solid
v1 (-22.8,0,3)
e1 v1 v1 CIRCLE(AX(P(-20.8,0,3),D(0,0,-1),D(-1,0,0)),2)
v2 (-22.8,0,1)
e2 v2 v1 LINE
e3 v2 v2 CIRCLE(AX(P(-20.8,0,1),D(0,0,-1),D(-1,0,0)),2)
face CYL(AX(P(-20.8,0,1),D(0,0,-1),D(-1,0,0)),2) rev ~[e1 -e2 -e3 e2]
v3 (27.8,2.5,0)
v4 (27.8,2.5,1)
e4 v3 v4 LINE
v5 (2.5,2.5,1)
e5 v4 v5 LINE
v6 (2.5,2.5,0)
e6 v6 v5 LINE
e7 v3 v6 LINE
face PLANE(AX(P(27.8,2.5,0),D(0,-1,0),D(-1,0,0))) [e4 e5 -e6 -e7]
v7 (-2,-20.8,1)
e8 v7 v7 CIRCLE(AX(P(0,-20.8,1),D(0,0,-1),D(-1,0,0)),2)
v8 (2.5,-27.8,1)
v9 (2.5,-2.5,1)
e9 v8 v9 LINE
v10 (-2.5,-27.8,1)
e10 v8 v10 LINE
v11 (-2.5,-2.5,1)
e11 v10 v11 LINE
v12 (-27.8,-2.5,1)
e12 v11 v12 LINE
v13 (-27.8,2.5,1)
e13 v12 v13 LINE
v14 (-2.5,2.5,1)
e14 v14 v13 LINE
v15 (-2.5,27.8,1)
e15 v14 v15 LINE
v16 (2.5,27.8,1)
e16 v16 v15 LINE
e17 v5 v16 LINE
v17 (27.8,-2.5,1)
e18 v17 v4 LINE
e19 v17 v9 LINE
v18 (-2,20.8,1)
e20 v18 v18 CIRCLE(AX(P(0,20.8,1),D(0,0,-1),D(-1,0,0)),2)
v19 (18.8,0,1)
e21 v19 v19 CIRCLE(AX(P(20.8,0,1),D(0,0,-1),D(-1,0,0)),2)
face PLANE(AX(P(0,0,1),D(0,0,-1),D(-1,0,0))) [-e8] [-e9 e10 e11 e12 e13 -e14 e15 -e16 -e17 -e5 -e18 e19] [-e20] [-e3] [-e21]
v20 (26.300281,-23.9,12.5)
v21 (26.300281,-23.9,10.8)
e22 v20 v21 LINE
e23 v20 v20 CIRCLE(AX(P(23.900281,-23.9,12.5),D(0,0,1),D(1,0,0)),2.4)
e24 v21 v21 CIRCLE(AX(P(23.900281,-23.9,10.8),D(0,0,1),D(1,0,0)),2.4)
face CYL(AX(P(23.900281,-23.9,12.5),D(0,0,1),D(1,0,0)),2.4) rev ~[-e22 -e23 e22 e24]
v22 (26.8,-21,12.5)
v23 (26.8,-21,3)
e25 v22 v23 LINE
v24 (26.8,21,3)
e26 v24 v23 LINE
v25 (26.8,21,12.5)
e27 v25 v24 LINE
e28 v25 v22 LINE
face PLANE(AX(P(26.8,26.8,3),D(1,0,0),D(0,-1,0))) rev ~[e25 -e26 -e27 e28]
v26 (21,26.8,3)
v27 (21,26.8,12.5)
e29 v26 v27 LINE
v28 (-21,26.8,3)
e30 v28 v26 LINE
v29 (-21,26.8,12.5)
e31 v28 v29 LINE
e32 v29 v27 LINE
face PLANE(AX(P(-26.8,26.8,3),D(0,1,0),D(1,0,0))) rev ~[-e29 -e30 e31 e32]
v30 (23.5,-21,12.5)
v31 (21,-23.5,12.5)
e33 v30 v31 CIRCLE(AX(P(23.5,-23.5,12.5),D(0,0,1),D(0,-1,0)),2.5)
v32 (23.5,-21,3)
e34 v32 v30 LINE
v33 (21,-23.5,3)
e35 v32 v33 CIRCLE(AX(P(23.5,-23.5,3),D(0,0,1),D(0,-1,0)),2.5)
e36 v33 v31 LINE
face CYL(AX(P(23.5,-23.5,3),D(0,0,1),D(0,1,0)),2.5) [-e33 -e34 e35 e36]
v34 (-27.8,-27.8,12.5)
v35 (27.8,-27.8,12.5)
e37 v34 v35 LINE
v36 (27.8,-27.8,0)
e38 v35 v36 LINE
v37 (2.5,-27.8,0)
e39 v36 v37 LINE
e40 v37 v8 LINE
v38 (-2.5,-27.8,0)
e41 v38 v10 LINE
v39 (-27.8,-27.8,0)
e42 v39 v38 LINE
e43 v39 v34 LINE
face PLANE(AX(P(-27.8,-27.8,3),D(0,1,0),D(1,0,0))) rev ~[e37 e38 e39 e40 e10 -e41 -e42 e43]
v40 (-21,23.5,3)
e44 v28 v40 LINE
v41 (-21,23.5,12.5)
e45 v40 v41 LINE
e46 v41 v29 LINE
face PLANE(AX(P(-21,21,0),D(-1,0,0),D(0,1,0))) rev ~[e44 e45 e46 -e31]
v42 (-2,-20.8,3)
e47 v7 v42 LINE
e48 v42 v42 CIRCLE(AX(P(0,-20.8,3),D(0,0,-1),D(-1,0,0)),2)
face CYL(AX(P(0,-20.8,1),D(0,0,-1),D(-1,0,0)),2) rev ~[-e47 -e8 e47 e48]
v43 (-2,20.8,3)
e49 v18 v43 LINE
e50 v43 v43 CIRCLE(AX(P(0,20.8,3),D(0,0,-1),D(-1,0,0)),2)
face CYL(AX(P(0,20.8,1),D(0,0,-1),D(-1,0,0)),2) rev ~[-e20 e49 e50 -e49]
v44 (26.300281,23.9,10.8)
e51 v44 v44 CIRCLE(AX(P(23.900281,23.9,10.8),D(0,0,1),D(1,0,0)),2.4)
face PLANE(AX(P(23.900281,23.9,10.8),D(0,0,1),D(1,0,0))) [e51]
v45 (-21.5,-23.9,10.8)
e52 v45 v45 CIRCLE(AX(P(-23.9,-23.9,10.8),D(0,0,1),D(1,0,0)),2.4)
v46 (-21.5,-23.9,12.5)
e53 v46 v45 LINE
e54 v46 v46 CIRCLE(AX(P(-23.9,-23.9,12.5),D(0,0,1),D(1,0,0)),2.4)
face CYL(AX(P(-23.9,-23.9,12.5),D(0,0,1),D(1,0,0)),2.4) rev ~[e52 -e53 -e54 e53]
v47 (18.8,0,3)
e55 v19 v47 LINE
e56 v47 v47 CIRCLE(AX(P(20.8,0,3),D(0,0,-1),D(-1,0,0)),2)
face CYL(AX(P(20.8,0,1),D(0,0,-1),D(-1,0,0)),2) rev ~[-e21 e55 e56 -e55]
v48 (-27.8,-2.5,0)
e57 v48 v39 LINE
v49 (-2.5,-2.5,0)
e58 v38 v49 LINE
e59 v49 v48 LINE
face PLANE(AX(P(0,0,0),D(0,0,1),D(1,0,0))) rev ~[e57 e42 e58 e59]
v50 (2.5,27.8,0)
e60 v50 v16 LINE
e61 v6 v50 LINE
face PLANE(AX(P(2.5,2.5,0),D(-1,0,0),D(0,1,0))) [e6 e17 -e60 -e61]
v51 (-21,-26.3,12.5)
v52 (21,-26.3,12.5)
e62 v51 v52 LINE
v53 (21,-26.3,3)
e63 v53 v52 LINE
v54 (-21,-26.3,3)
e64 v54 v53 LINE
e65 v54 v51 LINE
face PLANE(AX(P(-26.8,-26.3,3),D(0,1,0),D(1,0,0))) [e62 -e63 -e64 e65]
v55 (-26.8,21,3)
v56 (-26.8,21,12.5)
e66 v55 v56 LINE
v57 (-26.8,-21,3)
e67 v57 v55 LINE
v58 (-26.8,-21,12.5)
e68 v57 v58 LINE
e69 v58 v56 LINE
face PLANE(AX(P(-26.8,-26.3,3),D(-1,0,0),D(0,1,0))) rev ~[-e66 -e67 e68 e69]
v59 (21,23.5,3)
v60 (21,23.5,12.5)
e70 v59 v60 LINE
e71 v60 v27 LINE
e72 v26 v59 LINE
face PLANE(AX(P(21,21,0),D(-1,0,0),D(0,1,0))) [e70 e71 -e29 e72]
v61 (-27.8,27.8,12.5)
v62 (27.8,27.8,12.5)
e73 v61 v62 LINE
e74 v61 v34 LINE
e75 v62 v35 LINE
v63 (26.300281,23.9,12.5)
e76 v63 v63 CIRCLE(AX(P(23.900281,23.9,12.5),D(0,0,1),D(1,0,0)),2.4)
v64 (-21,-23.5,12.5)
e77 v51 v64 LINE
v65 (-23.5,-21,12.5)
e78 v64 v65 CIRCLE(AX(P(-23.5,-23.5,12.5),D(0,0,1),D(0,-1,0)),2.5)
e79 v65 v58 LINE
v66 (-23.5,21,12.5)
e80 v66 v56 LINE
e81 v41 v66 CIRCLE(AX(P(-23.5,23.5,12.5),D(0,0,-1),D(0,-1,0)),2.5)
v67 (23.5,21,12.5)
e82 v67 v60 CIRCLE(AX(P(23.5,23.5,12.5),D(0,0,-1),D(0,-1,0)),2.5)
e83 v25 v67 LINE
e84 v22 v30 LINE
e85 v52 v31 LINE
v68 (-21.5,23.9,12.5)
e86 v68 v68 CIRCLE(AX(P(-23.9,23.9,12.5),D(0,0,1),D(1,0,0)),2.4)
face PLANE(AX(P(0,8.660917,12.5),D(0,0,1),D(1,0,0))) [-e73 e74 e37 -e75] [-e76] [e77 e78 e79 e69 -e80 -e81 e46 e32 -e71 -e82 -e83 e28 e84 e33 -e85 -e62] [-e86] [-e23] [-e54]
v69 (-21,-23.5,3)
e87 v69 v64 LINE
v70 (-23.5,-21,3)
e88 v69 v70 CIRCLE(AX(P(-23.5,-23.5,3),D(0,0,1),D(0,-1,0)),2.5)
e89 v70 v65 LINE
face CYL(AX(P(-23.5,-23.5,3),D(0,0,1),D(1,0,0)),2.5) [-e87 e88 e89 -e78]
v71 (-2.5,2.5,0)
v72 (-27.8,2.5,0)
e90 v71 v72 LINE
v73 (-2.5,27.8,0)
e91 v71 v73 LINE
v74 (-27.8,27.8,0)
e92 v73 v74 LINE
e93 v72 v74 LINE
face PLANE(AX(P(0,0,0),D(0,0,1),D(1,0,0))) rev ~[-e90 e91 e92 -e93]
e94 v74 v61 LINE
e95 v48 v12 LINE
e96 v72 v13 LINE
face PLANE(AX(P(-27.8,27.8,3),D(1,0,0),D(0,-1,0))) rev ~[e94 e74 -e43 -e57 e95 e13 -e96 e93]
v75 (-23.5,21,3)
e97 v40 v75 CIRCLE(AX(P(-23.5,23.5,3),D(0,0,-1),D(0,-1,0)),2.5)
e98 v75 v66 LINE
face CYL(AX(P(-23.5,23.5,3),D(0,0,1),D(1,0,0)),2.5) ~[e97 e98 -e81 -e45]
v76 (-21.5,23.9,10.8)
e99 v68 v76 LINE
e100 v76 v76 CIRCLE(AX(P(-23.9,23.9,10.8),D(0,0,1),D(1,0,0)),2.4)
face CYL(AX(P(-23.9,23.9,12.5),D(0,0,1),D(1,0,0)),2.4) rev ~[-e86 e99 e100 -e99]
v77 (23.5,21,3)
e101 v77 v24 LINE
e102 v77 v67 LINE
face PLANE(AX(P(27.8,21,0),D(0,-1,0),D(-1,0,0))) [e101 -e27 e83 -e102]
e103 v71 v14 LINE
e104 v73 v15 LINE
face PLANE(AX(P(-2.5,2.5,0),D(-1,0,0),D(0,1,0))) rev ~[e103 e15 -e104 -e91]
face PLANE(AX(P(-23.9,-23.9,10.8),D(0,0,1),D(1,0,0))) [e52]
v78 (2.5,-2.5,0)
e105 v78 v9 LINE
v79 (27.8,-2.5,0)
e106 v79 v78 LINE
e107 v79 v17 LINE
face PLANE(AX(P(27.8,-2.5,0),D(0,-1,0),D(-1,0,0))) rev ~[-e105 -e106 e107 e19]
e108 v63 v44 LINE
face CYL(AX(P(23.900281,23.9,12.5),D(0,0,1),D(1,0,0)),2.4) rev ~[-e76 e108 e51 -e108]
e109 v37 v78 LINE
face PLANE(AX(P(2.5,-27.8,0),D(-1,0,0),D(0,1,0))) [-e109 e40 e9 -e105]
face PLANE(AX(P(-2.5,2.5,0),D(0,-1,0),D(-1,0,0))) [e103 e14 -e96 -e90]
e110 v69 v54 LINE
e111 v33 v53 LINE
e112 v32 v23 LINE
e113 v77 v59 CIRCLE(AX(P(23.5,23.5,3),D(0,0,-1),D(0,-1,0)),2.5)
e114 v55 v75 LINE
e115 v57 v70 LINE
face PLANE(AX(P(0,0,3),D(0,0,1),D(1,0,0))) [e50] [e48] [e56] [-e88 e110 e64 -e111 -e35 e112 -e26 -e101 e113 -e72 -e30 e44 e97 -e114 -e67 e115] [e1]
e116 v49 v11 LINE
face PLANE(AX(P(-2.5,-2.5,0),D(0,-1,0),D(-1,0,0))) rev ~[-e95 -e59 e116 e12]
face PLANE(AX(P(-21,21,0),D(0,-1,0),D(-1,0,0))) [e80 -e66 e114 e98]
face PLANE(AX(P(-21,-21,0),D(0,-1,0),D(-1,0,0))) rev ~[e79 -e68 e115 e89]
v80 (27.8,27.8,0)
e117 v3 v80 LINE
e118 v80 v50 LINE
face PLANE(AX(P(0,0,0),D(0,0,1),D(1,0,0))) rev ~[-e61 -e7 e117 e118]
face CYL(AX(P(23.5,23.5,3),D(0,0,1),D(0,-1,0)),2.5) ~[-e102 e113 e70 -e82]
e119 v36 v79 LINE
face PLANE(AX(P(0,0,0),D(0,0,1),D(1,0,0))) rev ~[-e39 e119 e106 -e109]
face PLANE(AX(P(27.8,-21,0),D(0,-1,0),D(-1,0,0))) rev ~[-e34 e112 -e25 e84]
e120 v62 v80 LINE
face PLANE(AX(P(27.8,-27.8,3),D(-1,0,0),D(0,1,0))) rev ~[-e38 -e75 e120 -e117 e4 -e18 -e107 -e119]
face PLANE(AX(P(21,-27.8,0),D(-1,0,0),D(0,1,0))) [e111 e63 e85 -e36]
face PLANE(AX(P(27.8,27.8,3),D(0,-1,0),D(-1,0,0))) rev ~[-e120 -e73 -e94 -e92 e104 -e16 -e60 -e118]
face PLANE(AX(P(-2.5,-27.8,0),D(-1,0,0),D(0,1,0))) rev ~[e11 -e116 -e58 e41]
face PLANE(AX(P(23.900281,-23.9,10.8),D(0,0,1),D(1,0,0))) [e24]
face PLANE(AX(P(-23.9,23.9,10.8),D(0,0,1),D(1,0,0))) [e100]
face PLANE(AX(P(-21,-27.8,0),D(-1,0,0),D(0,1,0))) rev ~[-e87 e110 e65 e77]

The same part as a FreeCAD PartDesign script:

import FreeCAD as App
import Part
import Sketcher

V = App.Vector
Q = App.Units.Quantity


def edges_at(feature, points):
    """Names of the edges that pass closest to the given points."""
    edges = feature.Shape.Edges
    near = lambda p: min(range(len(edges)), key=lambda i: edges[i].distToShape(Part.Vertex(*p))[0])
    return sorted({f"Edge{near(p) + 1}" for p in points})


def add_polygon(sketch, points):
    """Adds a closed chain of lines whose ends are joined by coincident constraints."""
    first, n = sketch.GeometryCount, len(points)
    for a, b in zip(points, points[1:] + points[:1]):
        sketch.addGeometry(Part.LineSegment(App.Vector(*a, 0), App.Vector(*b, 0)), False)
    for i in range(n):
        sketch.addConstraint(Sketcher.Constraint("Coincident", first + i, 2, first + (i + 1) % n, 1))

doc = App.newDocument("Part")
params = doc.addObject("Spreadsheet::Sheet", "Params")
for row, (alias, value) in enumerate([
    ("sketch1_width", "55.6 mm"),
    ("pad1_length", "3 mm"),
    ("sketch2_width", "5 mm"),
    ("sketch2_width2", "25.3 mm"),
    ("pocket1_length", "1 mm"),
    ("sketch3_width", "55.6 mm"),
    ("sketch3_width2", "53.6 mm"),
    ("sketch3_height", "53.1 mm"),
    ("pad2_length", "9.5 mm"),
    ("sketch4_diameter", "4 mm"),
    ("pocket2_length", "4 mm"),
    ("sketch5_width", "6.8 mm"),
    ("pad3_length", "12.5 mm"),
    ("sketch6_diameter", "4.8 mm"),
    ("pocket3_length", "1.7 mm"),
    ("fillet_radius", "2.5 mm"),
], start=1):
    params.set(f"A{row}", alias)
    params.set(f"B{row}", "=" + value)
    params.setAlias(f"B{row}", alias)

body = doc.addObject("PartDesign::Body", "Body")

sketch1 = body.newObject("Sketcher::SketchObject", "Sketch")
sketch1.AttachmentSupport = (doc.getObject("XY_Plane"), [""])
sketch1.MapMode = "FlatFace"
add_polygon(sketch1, [(-28, 28), (-28, -28), (28, -28), (28, 28)])
sketch1.addConstraint([
    Sketcher.Constraint("Vertical", 0),
    Sketcher.Constraint("Horizontal", 1),
    Sketcher.Constraint("Vertical", 2),
    Sketcher.Constraint("Horizontal", 3),
    Sketcher.Constraint("Symmetric", 0, 2, 2, 2, -1, 1),
    Sketcher.Constraint("Equal", 3, 0),
    Sketcher.Constraint("DistanceX", 1, 1, 1, 2, Q("55.6 mm")),
])
sketch1.setExpression("Constraints[10]", "Params.sketch1_width")
pad1 = body.newObject("PartDesign::Pad", "Pad")
pad1.Profile = sketch1
pad1.setExpression("Length", "Params.pad1_length")

sketch2 = body.newObject("Sketcher::SketchObject", "Sketch001")
sketch2.AttachmentSupport = (doc.getObject("XY_Plane"), [""])
sketch2.MapMode = "FlatFace"
add_polygon(sketch2, [(2, -2), (2, -28), (-2, -28), (-2, -2), (-28, -2), (-28, 2), (-2, 2), (-2, 28), (2, 28), (2, 2), (28, 2), (28, -2)])
sketch2.addConstraint([
    Sketcher.Constraint("Vertical", 0),
    Sketcher.Constraint("Horizontal", 1),
    Sketcher.Constraint("Vertical", 2),
    Sketcher.Constraint("Horizontal", 3),
    Sketcher.Constraint("Vertical", 4),
    Sketcher.Constraint("Horizontal", 5),
    Sketcher.Constraint("Vertical", 6),
    Sketcher.Constraint("Horizontal", 7),
    Sketcher.Constraint("Vertical", 8),
    Sketcher.Constraint("Horizontal", 9),
    Sketcher.Constraint("Vertical", 10),
    Sketcher.Constraint("Horizontal", 11),
    Sketcher.Constraint("Symmetric", 0, 2, 6, 2, -1, 1),
    Sketcher.Constraint("Symmetric", 2, 2, 8, 2, -1, 1),
    Sketcher.Constraint("Symmetric", 4, 2, 10, 2, -1, 1),
    Sketcher.Constraint("Symmetric", 5, 2, 8, 2, -2),
    Sketcher.Constraint("Equal", 11, 0),
    Sketcher.Constraint("Equal", 7, 4),
    Sketcher.Constraint("DistanceX", 1, 2, 1, 1, Q("5 mm")),
    Sketcher.Constraint("DistanceX", 3, 2, 3, 1, Q("25.3 mm")),
])
sketch2.setExpression("Constraints[30]", "Params.sketch2_width")
sketch2.setExpression("Constraints[31]", "Params.sketch2_width2")
pocket1 = body.newObject("PartDesign::Pocket", "Pocket")
pocket1.Profile = sketch2
pocket1.setExpression("Length", "Params.pocket1_length")
pocket1.Reversed = True

sketch3 = body.newObject("Sketcher::SketchObject", "Sketch002")
sketch3.AttachmentSupport = (doc.getObject("XY_Plane"), [""])
sketch3.MapMode = "FlatFace"
sketch3.AttachmentOffset = App.Placement(V(0, 0, 3), App.Rotation())
add_polygon(sketch3, [(28, 28), (-28, 28), (-28, -28), (28, -28)])
add_polygon(sketch3, [(-27, -26), (-27, 27), (27, 27), (27, -26)])
sketch3.addConstraint([
    Sketcher.Constraint("Horizontal", 0),
    Sketcher.Constraint("Vertical", 1),
    Sketcher.Constraint("Horizontal", 2),
    Sketcher.Constraint("Vertical", 3),
    Sketcher.Constraint("Vertical", 4),
    Sketcher.Constraint("Horizontal", 5),
    Sketcher.Constraint("Vertical", 6),
    Sketcher.Constraint("Horizontal", 7),
    Sketcher.Constraint("Symmetric", 0, 2, 2, 2, -1, 1),
    Sketcher.Constraint("Equal", 2, 1),
    Sketcher.Constraint("DistanceX", 0, 2, 0, 1, Q("55.6 mm")),
    Sketcher.Constraint("DistanceX", 5, 1, 5, 2, Q("53.6 mm")),
    Sketcher.Constraint("DistanceY", 4, 1, 4, 2, Q("53.1 mm")),
    Sketcher.Constraint("DistanceX", 0, 2, 4, 2, Q("1 mm")),
    Sketcher.Constraint("DistanceY", 4, 2, 0, 2, Q("1 mm")),
])
sketch3.setExpression("Constraints[18]", "Params.sketch3_width")
sketch3.setExpression("Constraints[19]", "Params.sketch3_width2")
sketch3.setExpression("Constraints[20]", "Params.sketch3_height")
pad2 = body.newObject("PartDesign::Pad", "Pad001")
pad2.Profile = sketch3
pad2.setExpression("Length", "Params.pad2_length")

sketch4 = body.newObject("Sketcher::SketchObject", "Sketch003")
sketch4.AttachmentSupport = (doc.getObject("XY_Plane"), [""])
sketch4.MapMode = "FlatFace"
sketch4.AttachmentOffset = App.Placement(V(0, 0, 1), App.Rotation())
sketch4.addGeometry([
    Part.Circle(V(-20.8, 0, 0), V(0, 0, 1), 2),
    Part.Circle(V(20.8, 0, 0), V(0, 0, 1), 2),
    Part.Circle(V(0, 20.8, 0), V(0, 0, 1), 2),
    Part.Circle(V(0, -20.8, 0), V(0, 0, 1), 2),
], False)
sketch4.addConstraint([
    Sketcher.Constraint("Equal", 0, 1),
    Sketcher.Constraint("Equal", 1, 2),
    Sketcher.Constraint("Equal", 2, 3),
    Sketcher.Constraint("Symmetric", 0, 3, 1, 3, -1, 1),
    Sketcher.Constraint("Symmetric", 2, 3, 3, 3, -1, 1),
    Sketcher.Constraint("PointOnObject", 0, 3, -1),
    Sketcher.Constraint("PointOnObject", 2, 3, -2),
    Sketcher.Constraint("Diameter", 0, Q("4 mm")),
    Sketcher.Constraint("DistanceX", 0, 3, -1, 1, Q("20.8 mm")),
    Sketcher.Constraint("DistanceY", -1, 1, 2, 3, Q("20.8 mm")),
])
sketch4.setExpression("Constraints[7]", "Params.sketch4_diameter")
pocket2 = body.newObject("PartDesign::Pocket", "Pocket001")
pocket2.Profile = sketch4
pocket2.setExpression("Length", "Params.pocket2_length")
pocket2.Reversed = True

sketch5 = body.newObject("Sketcher::SketchObject", "Sketch004")
sketch5.AttachmentSupport = (doc.getObject("XY_Plane"), [""])
sketch5.MapMode = "FlatFace"
add_polygon(sketch5, [(28, 28), (28, 21), (21, 21), (21, 28)])
add_polygon(sketch5, [(-21, 28), (-21, 21), (-28, 21), (-28, 28)])
add_polygon(sketch5, [(28, -21), (28, -28), (21, -28), (21, -21)])
add_polygon(sketch5, [(-21, -21), (-21, -28), (-28, -28), (-28, -21)])
sketch5.addConstraint([
    Sketcher.Constraint("Vertical", 0),
    Sketcher.Constraint("Horizontal", 1),
    Sketcher.Constraint("Vertical", 2),
    Sketcher.Constraint("Horizontal", 3),
    Sketcher.Constraint("Vertical", 4),
    Sketcher.Constraint("Horizontal", 5),
    Sketcher.Constraint("Vertical", 6),
    Sketcher.Constraint("Horizontal", 7),
    Sketcher.Constraint("Vertical", 8),
    Sketcher.Constraint("Horizontal", 9),
    Sketcher.Constraint("Vertical", 10),
    Sketcher.Constraint("Horizontal", 11),
    Sketcher.Constraint("Vertical", 12),
    Sketcher.Constraint("Horizontal", 13),
    Sketcher.Constraint("Vertical", 14),
    Sketcher.Constraint("Horizontal", 15),
    Sketcher.Constraint("Symmetric", 6, 2, 8, 2, -1, 1),
    Sketcher.Constraint("Symmetric", 4, 2, 10, 2, -1, 1),
    Sketcher.Constraint("Symmetric", 2, 2, 12, 2, -1, 1),
    Sketcher.Constraint("Symmetric", 0, 2, 14, 2, -1, 1),
    Sketcher.Constraint("Symmetric", 1, 2, 4, 2, -2),
    Sketcher.Constraint("Symmetric", 3, 2, 6, 2, -2),
    Sketcher.Constraint("Equal", 15, 0),
    Sketcher.Constraint("DistanceX", 1, 2, 1, 1, Q("6.8 mm")),
    Sketcher.Constraint("DistanceY", -1, 1, 0, 2, Q("21 mm")),
    Sketcher.Constraint("DistanceX", -1, 1, 1, 2, Q("21 mm")),
])
sketch5.setExpression("Constraints[39]", "Params.sketch5_width")
pad3 = body.newObject("PartDesign::Pad", "Pad002")
pad3.Profile = sketch5
pad3.setExpression("Length", "Params.pad3_length")

sketch6 = body.newObject("Sketcher::SketchObject", "Sketch005")
sketch6.AttachmentSupport = (doc.getObject("XY_Plane"), [""])
sketch6.MapMode = "FlatFace"
sketch6.AttachmentOffset = App.Placement(V(0, 0, 12.5), App.Rotation())
sketch6.addGeometry([
    Part.Circle(V(-23.9, -23.9, 0), V(0, 0, 1), 2.4),
    Part.Circle(V(-23.9, 23.9, 0), V(0, 0, 1), 2.4),
    Part.Circle(V(23.9, 23.9, 0), V(0, 0, 1), 2.4),
    Part.Circle(V(23.9, -23.9, 0), V(0, 0, 1), 2.4),
], False)
sketch6.addConstraint([
    Sketcher.Constraint("Equal", 0, 1),
    Sketcher.Constraint("Equal", 1, 2),
    Sketcher.Constraint("Equal", 2, 3),
    Sketcher.Constraint("Symmetric", 0, 3, 1, 3, -1),
    Sketcher.Constraint("Symmetric", 2, 3, 3, 3, -1),
    Sketcher.Constraint("Horizontal", 1, 3, 2, 3),
    Sketcher.Constraint("Diameter", 0, Q("4.8 mm")),
    Sketcher.Constraint("DistanceX", 0, 3, -1, 1, Q("23.9 mm")),
    Sketcher.Constraint("DistanceY", 0, 3, -1, 1, Q("23.9 mm")),
    Sketcher.Constraint("DistanceX", -1, 1, 2, 3, Q("23.900281 mm")),
])
sketch6.setExpression("Constraints[6]", "Params.sketch6_diameter")
pocket3 = body.newObject("PartDesign::Pocket", "Pocket002")
pocket3.Profile = sketch6
pocket3.setExpression("Length", "Params.pocket3_length")
doc.recompute()

fillet = body.newObject("PartDesign::Fillet", "Fillet")
fillet.Base = (pocket3, edges_at(pocket3, [
    (21, 21, 7.75),
    (-21, 21, 7.75),
    (21, -21, 7.75),
    (-21, -21, 7.75),
]))
fillet.setExpression("Radius", "Params.fillet_radius")

doc.recompute()
